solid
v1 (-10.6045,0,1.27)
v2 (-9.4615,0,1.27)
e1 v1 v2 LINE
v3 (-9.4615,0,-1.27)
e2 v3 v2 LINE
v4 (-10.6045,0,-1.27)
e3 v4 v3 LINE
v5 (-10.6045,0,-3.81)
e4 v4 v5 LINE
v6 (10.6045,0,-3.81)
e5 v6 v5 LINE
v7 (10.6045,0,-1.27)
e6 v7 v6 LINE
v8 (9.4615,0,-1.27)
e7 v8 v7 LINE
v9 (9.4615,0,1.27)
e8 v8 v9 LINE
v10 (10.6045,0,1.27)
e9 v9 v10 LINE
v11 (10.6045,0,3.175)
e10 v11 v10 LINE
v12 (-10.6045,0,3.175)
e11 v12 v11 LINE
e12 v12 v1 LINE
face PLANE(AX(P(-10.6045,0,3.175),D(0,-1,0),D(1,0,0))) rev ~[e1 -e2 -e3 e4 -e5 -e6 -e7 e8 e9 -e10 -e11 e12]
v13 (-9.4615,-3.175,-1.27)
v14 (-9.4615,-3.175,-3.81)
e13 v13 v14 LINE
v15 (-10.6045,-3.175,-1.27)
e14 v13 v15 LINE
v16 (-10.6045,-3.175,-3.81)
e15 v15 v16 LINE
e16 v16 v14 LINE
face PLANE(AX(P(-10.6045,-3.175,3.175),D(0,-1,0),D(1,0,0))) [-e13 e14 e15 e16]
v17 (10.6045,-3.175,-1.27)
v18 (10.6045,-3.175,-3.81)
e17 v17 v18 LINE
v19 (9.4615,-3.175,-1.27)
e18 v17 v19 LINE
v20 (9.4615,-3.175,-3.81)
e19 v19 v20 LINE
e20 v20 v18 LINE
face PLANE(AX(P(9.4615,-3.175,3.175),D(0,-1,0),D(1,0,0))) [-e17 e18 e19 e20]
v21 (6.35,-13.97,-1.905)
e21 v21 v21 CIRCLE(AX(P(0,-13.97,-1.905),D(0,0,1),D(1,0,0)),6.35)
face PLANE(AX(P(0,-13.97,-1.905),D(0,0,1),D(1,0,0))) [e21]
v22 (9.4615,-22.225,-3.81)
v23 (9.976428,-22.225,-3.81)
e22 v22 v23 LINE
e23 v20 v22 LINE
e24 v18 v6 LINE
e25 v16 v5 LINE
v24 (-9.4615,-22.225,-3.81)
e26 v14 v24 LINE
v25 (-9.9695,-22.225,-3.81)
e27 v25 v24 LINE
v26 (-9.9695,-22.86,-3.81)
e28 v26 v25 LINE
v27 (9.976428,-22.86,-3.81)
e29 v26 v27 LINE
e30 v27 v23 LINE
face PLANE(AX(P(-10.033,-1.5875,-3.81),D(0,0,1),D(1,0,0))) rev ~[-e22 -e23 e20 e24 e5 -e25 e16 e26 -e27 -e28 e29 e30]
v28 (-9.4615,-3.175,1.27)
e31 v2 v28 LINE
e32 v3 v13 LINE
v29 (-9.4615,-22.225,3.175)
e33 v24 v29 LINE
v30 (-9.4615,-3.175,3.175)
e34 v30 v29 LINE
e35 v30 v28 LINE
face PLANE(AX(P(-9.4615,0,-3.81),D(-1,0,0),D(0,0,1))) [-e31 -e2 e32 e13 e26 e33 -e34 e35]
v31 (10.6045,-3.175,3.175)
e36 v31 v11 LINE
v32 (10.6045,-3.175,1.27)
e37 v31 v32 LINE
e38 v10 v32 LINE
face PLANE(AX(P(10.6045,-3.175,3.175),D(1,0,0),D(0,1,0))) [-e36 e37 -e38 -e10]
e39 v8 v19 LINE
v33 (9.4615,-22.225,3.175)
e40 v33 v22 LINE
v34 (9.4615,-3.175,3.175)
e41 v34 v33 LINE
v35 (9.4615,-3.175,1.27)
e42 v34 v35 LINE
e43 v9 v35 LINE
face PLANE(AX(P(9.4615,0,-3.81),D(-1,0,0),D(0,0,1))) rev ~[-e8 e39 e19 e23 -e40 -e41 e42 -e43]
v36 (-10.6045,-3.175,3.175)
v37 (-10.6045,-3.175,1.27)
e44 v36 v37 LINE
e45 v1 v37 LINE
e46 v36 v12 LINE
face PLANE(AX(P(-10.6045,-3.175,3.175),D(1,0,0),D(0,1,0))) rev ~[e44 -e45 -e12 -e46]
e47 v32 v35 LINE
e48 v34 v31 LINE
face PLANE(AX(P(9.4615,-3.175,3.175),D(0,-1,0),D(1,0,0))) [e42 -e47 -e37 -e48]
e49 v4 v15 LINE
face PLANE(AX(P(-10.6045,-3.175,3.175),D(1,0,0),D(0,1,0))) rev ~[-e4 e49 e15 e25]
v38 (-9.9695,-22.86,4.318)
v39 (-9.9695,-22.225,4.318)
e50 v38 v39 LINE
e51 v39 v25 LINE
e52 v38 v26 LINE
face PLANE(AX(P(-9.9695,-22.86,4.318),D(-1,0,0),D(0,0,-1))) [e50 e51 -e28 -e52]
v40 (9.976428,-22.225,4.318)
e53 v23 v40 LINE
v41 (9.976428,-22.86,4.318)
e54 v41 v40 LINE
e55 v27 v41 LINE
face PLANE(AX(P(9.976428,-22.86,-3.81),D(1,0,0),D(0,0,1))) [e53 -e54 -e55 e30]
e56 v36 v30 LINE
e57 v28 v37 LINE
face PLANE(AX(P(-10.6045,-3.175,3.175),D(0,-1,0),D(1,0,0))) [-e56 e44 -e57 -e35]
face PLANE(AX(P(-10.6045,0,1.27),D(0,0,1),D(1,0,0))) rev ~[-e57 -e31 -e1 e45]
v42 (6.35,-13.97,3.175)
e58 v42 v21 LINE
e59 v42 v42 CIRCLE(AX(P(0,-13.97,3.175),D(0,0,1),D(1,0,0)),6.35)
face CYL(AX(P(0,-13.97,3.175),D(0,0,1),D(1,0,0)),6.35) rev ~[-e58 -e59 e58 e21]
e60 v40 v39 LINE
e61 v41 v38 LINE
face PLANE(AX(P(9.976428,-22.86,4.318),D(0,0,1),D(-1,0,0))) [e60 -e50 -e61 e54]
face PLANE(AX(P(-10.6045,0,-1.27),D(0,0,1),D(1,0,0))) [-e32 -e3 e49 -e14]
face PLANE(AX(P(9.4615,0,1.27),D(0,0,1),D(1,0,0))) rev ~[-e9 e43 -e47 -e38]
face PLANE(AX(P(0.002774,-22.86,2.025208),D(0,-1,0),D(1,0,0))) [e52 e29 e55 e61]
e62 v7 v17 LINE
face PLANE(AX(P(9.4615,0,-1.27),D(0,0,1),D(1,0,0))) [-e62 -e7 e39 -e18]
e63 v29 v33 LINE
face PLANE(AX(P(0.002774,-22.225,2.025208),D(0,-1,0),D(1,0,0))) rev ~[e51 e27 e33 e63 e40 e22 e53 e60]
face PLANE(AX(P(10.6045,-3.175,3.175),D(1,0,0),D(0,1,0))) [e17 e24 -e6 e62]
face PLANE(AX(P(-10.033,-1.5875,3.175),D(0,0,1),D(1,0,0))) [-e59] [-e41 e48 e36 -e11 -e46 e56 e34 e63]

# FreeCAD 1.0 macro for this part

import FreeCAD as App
import Part
import Sketcher
from FreeCAD import Vector
Q = App.Units.Quantity

doc = App.newDocument("Part")
body = doc.addObject("PartDesign::Body", "Body")

sketch1 = doc.addObject("Sketcher::SketchObject", "Sketch")
body.addObject(sketch1)
sketch1.AttachmentSupport = (doc.XZ_Plane, [""])
sketch1.MapMode = "FlatFace"
sketch1.addGeometry(Part.LineSegment(Vector(-9, 3, 0), Vector(-9, -4, 0)), False)
sketch1.addGeometry(Part.LineSegment(Vector(-9, -4, 0), Vector(9, -4, 0)), False)
sketch1.addGeometry(Part.LineSegment(Vector(9, -4, 0), Vector(9, 3, 0)), False)
sketch1.addGeometry(Part.LineSegment(Vector(9, 3, 0), Vector(-9, 3, 0)), False)
sketch1.addConstraint(Sketcher.Constraint("Coincident", 0, 2, 1, 1))
sketch1.addConstraint(Sketcher.Constraint("Coincident", 1, 2, 2, 1))
sketch1.addConstraint(Sketcher.Constraint("Coincident", 2, 2, 3, 1))
sketch1.addConstraint(Sketcher.Constraint("Coincident", 3, 2, 0, 1))
sketch1.addConstraint(Sketcher.Constraint("Vertical", 0))
sketch1.addConstraint(Sketcher.Constraint("Horizontal", 1))
sketch1.addConstraint(Sketcher.Constraint("Vertical", 2))
sketch1.addConstraint(Sketcher.Constraint("Horizontal", 3))
sketch1.addConstraint(Sketcher.Constraint("DistanceX", 1, 1, 1, 2, Q("0.745 in")))
sketch1.addConstraint(Sketcher.Constraint("DistanceY", 0, 2, 0, 1, Q("0.275 in")))
sketch1.addConstraint(Sketcher.Constraint("DistanceY", 0, 2, -1, 1, Q("0.15 in")))
sketch1.addConstraint(Sketcher.Constraint("DistanceX", 0, 2, -1, 1, Q("0.3725 in")))
pad1 = doc.addObject("PartDesign::Pad", "Pad")
body.addObject(pad1)
pad1.Profile = sketch1
pad1.Length = Q("0.9 in")

sketch2 = doc.addObject("Sketcher::SketchObject", "Sketch001")
body.addObject(sketch2)
sketch2.AttachmentSupport = (doc.XZ_Plane, [""])
sketch2.MapMode = "FlatFace"
sketch2.AttachmentOffset = App.Placement(Vector(0, 0, 0.9 * 25.4), App.Rotation())
sketch2.addGeometry(Part.LineSegment(Vector(10, 4.3, 0), Vector(-10, 4.3, 0)), False)
sketch2.addGeometry(Part.LineSegment(Vector(-10, 4.3, 0), Vector(-10, -3.8, 0)), False)
sketch2.addGeometry(Part.LineSegment(Vector(-10, -3.8, 0), Vector(-9.5, -3.8, 0)), False)
sketch2.addGeometry(Part.LineSegment(Vector(-9.5, -3.8, 0), Vector(-9.5, 3.2, 0)), False)
sketch2.addGeometry(Part.LineSegment(Vector(-9.5, 3.2, 0), Vector(9.5, 3.2, 0)), False)
sketch2.addGeometry(Part.LineSegment(Vector(9.5, 3.2, 0), Vector(9.5, -3.8, 0)), False)
sketch2.addGeometry(Part.LineSegment(Vector(9.5, -3.8, 0), Vector(10, -3.8, 0)), False)
sketch2.addGeometry(Part.LineSegment(Vector(10, -3.8, 0), Vector(10, 4.3, 0)), False)
sketch2.addConstraint(Sketcher.Constraint("Coincident", 0, 2, 1, 1))
sketch2.addConstraint(Sketcher.Constraint("Coincident", 1, 2, 2, 1))
sketch2.addConstraint(Sketcher.Constraint("Coincident", 2, 2, 3, 1))
sketch2.addConstraint(Sketcher.Constraint("Coincident", 3, 2, 4, 1))
sketch2.addConstraint(Sketcher.Constraint("Coincident", 4, 2, 5, 1))
sketch2.addConstraint(Sketcher.Constraint("Coincident", 5, 2, 6, 1))
sketch2.addConstraint(Sketcher.Constraint("Coincident", 6, 2, 7, 1))
sketch2.addConstraint(Sketcher.Constraint("Coincident", 7, 2, 0, 1))
sketch2.addConstraint(Sketcher.Constraint("Horizontal", 0))
sketch2.addConstraint(Sketcher.Constraint("Vertical", 1))
sketch2.addConstraint(Sketcher.Constraint("Horizontal", 2))
sketch2.addConstraint(Sketcher.Constraint("Vertical", 3))
sketch2.addConstraint(Sketcher.Constraint("Horizontal", 4))
sketch2.addConstraint(Sketcher.Constraint("Vertical", 5))
sketch2.addConstraint(Sketcher.Constraint("Horizontal", 6))
sketch2.addConstraint(Sketcher.Constraint("Vertical", 7))
sketch2.addConstraint(Sketcher.Constraint("Symmetric", 2, 2, 5, 2, -2))
sketch2.addConstraint(Sketcher.Constraint("DistanceX", 2, 1, 2, 2, Q("0.02 in")))
sketch2.addConstraint(Sketcher.Constraint("DistanceY", 1, 2, 1, 1, Q("0.32 in")))
sketch2.addConstraint(Sketcher.Constraint("DistanceX", 4, 1, 4, 2, Q("0.745 in")))
sketch2.addConstraint(Sketcher.Constraint("DistanceY", 3, 1, 3, 2, Q("0.275 in")))
sketch2.addConstraint(Sketcher.Constraint("DistanceY", -1, 1, 0, 2, Q("0.17 in")))
sketch2.addConstraint(Sketcher.Constraint("DistanceX", 0, 2, 0, 1, Q("19.945928 mm")))
pad2 = doc.addObject("PartDesign::Pad", "Pad001")
body.addObject(pad2)
pad2.Profile = sketch2
pad2.Length = Q("0.025 in")
pad2.Reversed = True

sketch3 = doc.addObject("Sketcher::SketchObject", "Sketch002")
body.addObject(sketch3)
sketch3.AttachmentSupport = (doc.XY_Plane, [""])
sketch3.MapMode = "FlatFace"
sketch3.AttachmentOffset = App.Placement(Vector(0, 0, 0.125 * 25.4), App.Rotation())
sketch3.addGeometry(Part.Circle(Vector(0, -14, 0), Vector(0, 0, 1), 6), False)
sketch3.addConstraint(Sketcher.Constraint("PointOnObject", 0, 3, -2))
sketch3.addConstraint(Sketcher.Constraint("Diameter", 0, Q("0.5 in")))
sketch3.addConstraint(Sketcher.Constraint("DistanceY", 0, 3, -1, 1, Q("0.55 in")))
pocket1 = doc.addObject("PartDesign::Pocket", "Pocket")
body.addObject(pocket1)
pocket1.Profile = sketch3
pocket1.Length = Q("0.2 in")

sketch4 = doc.addObject("Sketcher::SketchObject", "Sketch003")
body.addObject(sketch4)
sketch4.AttachmentSupport = (doc.XY_Plane, [""])
sketch4.MapMode = "FlatFace"
sketch4.AttachmentOffset = App.Placement(Vector(0, 0, 0.125 * 25.4), App.Rotation())
sketch4.addGeometry(Part.LineSegment(Vector(-10.6, 0, 0), Vector(-10.6, -3.2, 0)), False)
sketch4.addGeometry(Part.LineSegment(Vector(-10.6, -3.2, 0), Vector(-9.5, -3.2, 0)), False)
sketch4.addGeometry(Part.LineSegment(Vector(-9.5, -3.2, 0), Vector(-9.5, 0, 0)), False)
sketch4.addGeometry(Part.LineSegment(Vector(-9.5, 0, 0), Vector(-10.6, 0, 0)), False)
sketch4.addGeometry(Part.LineSegment(Vector(9.5, 0, 0), Vector(9.5, -3.2, 0)), False)
sketch4.addGeometry(Part.LineSegment(Vector(9.5, -3.2, 0), Vector(10.6, -3.2, 0)), False)
sketch4.addGeometry(Part.LineSegment(Vector(10.6, -3.2, 0), Vector(10.6, 0, 0)), False)
sketch4.addGeometry(Part.LineSegment(Vector(10.6, 0, 0), Vector(9.5, 0, 0)), False)
sketch4.addConstraint(Sketcher.Constraint("Coincident", 0, 2, 1, 1))
sketch4.addConstraint(Sketcher.Constraint("Coincident", 1, 2, 2, 1))
sketch4.addConstraint(Sketcher.Constraint("Coincident", 2, 2, 3, 1))
sketch4.addConstraint(Sketcher.Constraint("Coincident", 3, 2, 0, 1))
sketch4.addConstraint(Sketcher.Constraint("Coincident", 4, 2, 5, 1))
sketch4.addConstraint(Sketcher.Constraint("Coincident", 5, 2, 6, 1))
sketch4.addConstraint(Sketcher.Constraint("Coincident", 6, 2, 7, 1))
sketch4.addConstraint(Sketcher.Constraint("Coincident", 7, 2, 4, 1))
sketch4.addConstraint(Sketcher.Constraint("Vertical", 0))
sketch4.addConstraint(Sketcher.Constraint("Horizontal", 1))
sketch4.addConstraint(Sketcher.Constraint("Vertical", 2))
sketch4.addConstraint(Sketcher.Constraint("Horizontal", 3))
sketch4.addConstraint(Sketcher.Constraint("Vertical", 4))
sketch4.addConstraint(Sketcher.Constraint("Horizontal", 5))
sketch4.addConstraint(Sketcher.Constraint("Vertical", 6))
sketch4.addConstraint(Sketcher.Constraint("Horizontal", 7))
sketch4.addConstraint(Sketcher.Constraint("Symmetric", 3, 2, 6, 2, -1, 1))
sketch4.addConstraint(Sketcher.Constraint("Symmetric", 1, 2, 4, 2, -2))
sketch4.addConstraint(Sketcher.Constraint("PointOnObject", 2, 2, -1))
sketch4.addConstraint(Sketcher.Constraint("DistanceX", 1, 1, 1, 2, Q("0.045 in")))
sketch4.addConstraint(Sketcher.Constraint("DistanceY", 0, 2, 0, 1, Q("0.125 in")))
sketch4.addConstraint(Sketcher.Constraint("DistanceX", 0, 2, 4, 2, Q("0.79 in")))
pad3 = doc.addObject("PartDesign::Pad", "Pad002")
body.addObject(pad3)
pad3.Profile = sketch4
pad3.Type = "UpToLast"
pad3.Reversed = True

sketch5 = doc.addObject("Sketcher::SketchObject", "Sketch004")
body.addObject(sketch5)
sketch5.AttachmentSupport = (doc.XZ_Plane, [""])
sketch5.MapMode = "FlatFace"
sketch5.addGeometry(Part.LineSegment(Vector(9.5, 1.3, 0), Vector(9.5, -1.3, 0)), False)
sketch5.addGeometry(Part.LineSegment(Vector(9.5, -1.3, 0), Vector(10.6, -1.3, 0)), False)
sketch5.addGeometry(Part.LineSegment(Vector(10.6, -1.3, 0), Vector(10.6, 1.3, 0)), False)
sketch5.addGeometry(Part.LineSegment(Vector(10.6, 1.3, 0), Vector(9.5, 1.3, 0)), False)
sketch5.addGeometry(Part.LineSegment(Vector(-10.6, 1.3, 0), Vector(-10.6, -1.3, 0)), False)
sketch5.addGeometry(Part.LineSegment(Vector(-10.6, -1.3, 0), Vector(-9.5, -1.3, 0)), False)
sketch5.addGeometry(Part.LineSegment(Vector(-9.5, -1.3, 0), Vector(-9.5, 1.3, 0)), False)
sketch5.addGeometry(Part.LineSegment(Vector(-9.5, 1.3, 0), Vector(-10.6, 1.3, 0)), False)
sketch5.addConstraint(Sketcher.Constraint("Coincident", 0, 2, 1, 1))
sketch5.addConstraint(Sketcher.Constraint("Coincident", 1, 2, 2, 1))
sketch5.addConstraint(Sketcher.Constraint("Coincident", 2, 2, 3, 1))
sketch5.addConstraint(Sketcher.Constraint("Coincident", 3, 2, 0, 1))
sketch5.addConstraint(Sketcher.Constraint("Coincident", 4, 2, 5, 1))
sketch5.addConstraint(Sketcher.Constraint("Coincident", 5, 2, 6, 1))
sketch5.addConstraint(Sketcher.Constraint("Coincident", 6, 2, 7, 1))
sketch5.addConstraint(Sketcher.Constraint("Coincident", 7, 2, 4, 1))
sketch5.addConstraint(Sketcher.Constraint("Vertical", 0))
sketch5.addConstraint(Sketcher.Constraint("Horizontal", 1))
sketch5.addConstraint(Sketcher.Constraint("Vertical", 2))
sketch5.addConstraint(Sketcher.Constraint("Horizontal", 3))
sketch5.addConstraint(Sketcher.Constraint("Vertical", 4))
sketch5.addConstraint(Sketcher.Constraint("Horizontal", 5))
sketch5.addConstraint(Sketcher.Constraint("Vertical", 6))
sketch5.addConstraint(Sketcher.Constraint("Horizontal", 7))
sketch5.addConstraint(Sketcher.Constraint("Symmetric", 2, 2, 4, 2, -1, 1))
sketch5.addConstraint(Sketcher.Constraint("Symmetric", 0, 2, 6, 2, -1, 1))
sketch5.addConstraint(Sketcher.Constraint("Horizontal", 1, 2, 4, 2))
sketch5.addConstraint(Sketcher.Constraint("DistanceY", 0, 2, 0, 1, Q("0.1 in")))
sketch5.addConstraint(Sketcher.Constraint("DistanceX", 1, 1, 1, 2, Q("0.045 in")))
sketch5.addConstraint(Sketcher.Constraint("DistanceX", 4, 2, 0, 2, Q("0.79 in")))
pocket2 = doc.addObject("PartDesign::Pocket", "Pocket001")
body.addObject(pocket2)
pocket2.Profile = sketch5
pocket2.Length = Q("0.5 in")
pocket2.Reversed = True

doc.recompute()
